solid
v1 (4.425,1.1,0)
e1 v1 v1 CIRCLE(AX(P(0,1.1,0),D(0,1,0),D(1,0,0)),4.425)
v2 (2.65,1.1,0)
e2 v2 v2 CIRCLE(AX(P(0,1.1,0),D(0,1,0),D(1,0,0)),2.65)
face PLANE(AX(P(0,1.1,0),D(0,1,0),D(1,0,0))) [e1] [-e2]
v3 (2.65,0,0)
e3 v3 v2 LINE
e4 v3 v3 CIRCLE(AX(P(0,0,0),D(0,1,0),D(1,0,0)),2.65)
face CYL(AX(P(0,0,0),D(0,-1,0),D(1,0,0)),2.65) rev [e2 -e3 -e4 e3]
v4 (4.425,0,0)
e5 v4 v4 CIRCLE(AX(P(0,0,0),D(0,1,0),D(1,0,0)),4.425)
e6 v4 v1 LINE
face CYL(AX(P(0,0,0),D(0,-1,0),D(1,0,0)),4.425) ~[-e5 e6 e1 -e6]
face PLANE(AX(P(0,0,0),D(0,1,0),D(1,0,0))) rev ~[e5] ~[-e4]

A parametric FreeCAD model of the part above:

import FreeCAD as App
import Part
import Sketcher
from FreeCAD import Vector
Q = App.Units.Quantity

doc = App.newDocument("Part")
body = doc.addObject("PartDesign::Body", "Body")

# Sketch on XZ plane
sketch1 = body.newObject("Sketcher::SketchObject", "Sketch")
sketch1.AttachmentSupport = (doc.getObject("XZ_Plane"), [""])
sketch1.MapMode = "FlatFace"
sketch1.addGeometry([
    Part.Circle(Vector(0, 0, 0), Vector(0, 0, 1), 4.425),
    Part.Circle(Vector(0, 0, 0), Vector(0, 0, 1), 2.65),
], False)
sketch1.addConstraint([
    Sketcher.Constraint("Coincident", 0, 3, -1, 1),
    Sketcher.Constraint("Coincident", 1, 3, -1, 1),
    Sketcher.Constraint("Diameter", 1, Q("5.3 mm")),
    Sketcher.Constraint("Diameter", 0, Q("8.85 mm")),
])
pad1 = body.newObject("PartDesign::Pad", "Pad")
pad1.Profile = sketch1
pad1.Length = 1.1
pad1.Reversed = True

doc.recompute()
